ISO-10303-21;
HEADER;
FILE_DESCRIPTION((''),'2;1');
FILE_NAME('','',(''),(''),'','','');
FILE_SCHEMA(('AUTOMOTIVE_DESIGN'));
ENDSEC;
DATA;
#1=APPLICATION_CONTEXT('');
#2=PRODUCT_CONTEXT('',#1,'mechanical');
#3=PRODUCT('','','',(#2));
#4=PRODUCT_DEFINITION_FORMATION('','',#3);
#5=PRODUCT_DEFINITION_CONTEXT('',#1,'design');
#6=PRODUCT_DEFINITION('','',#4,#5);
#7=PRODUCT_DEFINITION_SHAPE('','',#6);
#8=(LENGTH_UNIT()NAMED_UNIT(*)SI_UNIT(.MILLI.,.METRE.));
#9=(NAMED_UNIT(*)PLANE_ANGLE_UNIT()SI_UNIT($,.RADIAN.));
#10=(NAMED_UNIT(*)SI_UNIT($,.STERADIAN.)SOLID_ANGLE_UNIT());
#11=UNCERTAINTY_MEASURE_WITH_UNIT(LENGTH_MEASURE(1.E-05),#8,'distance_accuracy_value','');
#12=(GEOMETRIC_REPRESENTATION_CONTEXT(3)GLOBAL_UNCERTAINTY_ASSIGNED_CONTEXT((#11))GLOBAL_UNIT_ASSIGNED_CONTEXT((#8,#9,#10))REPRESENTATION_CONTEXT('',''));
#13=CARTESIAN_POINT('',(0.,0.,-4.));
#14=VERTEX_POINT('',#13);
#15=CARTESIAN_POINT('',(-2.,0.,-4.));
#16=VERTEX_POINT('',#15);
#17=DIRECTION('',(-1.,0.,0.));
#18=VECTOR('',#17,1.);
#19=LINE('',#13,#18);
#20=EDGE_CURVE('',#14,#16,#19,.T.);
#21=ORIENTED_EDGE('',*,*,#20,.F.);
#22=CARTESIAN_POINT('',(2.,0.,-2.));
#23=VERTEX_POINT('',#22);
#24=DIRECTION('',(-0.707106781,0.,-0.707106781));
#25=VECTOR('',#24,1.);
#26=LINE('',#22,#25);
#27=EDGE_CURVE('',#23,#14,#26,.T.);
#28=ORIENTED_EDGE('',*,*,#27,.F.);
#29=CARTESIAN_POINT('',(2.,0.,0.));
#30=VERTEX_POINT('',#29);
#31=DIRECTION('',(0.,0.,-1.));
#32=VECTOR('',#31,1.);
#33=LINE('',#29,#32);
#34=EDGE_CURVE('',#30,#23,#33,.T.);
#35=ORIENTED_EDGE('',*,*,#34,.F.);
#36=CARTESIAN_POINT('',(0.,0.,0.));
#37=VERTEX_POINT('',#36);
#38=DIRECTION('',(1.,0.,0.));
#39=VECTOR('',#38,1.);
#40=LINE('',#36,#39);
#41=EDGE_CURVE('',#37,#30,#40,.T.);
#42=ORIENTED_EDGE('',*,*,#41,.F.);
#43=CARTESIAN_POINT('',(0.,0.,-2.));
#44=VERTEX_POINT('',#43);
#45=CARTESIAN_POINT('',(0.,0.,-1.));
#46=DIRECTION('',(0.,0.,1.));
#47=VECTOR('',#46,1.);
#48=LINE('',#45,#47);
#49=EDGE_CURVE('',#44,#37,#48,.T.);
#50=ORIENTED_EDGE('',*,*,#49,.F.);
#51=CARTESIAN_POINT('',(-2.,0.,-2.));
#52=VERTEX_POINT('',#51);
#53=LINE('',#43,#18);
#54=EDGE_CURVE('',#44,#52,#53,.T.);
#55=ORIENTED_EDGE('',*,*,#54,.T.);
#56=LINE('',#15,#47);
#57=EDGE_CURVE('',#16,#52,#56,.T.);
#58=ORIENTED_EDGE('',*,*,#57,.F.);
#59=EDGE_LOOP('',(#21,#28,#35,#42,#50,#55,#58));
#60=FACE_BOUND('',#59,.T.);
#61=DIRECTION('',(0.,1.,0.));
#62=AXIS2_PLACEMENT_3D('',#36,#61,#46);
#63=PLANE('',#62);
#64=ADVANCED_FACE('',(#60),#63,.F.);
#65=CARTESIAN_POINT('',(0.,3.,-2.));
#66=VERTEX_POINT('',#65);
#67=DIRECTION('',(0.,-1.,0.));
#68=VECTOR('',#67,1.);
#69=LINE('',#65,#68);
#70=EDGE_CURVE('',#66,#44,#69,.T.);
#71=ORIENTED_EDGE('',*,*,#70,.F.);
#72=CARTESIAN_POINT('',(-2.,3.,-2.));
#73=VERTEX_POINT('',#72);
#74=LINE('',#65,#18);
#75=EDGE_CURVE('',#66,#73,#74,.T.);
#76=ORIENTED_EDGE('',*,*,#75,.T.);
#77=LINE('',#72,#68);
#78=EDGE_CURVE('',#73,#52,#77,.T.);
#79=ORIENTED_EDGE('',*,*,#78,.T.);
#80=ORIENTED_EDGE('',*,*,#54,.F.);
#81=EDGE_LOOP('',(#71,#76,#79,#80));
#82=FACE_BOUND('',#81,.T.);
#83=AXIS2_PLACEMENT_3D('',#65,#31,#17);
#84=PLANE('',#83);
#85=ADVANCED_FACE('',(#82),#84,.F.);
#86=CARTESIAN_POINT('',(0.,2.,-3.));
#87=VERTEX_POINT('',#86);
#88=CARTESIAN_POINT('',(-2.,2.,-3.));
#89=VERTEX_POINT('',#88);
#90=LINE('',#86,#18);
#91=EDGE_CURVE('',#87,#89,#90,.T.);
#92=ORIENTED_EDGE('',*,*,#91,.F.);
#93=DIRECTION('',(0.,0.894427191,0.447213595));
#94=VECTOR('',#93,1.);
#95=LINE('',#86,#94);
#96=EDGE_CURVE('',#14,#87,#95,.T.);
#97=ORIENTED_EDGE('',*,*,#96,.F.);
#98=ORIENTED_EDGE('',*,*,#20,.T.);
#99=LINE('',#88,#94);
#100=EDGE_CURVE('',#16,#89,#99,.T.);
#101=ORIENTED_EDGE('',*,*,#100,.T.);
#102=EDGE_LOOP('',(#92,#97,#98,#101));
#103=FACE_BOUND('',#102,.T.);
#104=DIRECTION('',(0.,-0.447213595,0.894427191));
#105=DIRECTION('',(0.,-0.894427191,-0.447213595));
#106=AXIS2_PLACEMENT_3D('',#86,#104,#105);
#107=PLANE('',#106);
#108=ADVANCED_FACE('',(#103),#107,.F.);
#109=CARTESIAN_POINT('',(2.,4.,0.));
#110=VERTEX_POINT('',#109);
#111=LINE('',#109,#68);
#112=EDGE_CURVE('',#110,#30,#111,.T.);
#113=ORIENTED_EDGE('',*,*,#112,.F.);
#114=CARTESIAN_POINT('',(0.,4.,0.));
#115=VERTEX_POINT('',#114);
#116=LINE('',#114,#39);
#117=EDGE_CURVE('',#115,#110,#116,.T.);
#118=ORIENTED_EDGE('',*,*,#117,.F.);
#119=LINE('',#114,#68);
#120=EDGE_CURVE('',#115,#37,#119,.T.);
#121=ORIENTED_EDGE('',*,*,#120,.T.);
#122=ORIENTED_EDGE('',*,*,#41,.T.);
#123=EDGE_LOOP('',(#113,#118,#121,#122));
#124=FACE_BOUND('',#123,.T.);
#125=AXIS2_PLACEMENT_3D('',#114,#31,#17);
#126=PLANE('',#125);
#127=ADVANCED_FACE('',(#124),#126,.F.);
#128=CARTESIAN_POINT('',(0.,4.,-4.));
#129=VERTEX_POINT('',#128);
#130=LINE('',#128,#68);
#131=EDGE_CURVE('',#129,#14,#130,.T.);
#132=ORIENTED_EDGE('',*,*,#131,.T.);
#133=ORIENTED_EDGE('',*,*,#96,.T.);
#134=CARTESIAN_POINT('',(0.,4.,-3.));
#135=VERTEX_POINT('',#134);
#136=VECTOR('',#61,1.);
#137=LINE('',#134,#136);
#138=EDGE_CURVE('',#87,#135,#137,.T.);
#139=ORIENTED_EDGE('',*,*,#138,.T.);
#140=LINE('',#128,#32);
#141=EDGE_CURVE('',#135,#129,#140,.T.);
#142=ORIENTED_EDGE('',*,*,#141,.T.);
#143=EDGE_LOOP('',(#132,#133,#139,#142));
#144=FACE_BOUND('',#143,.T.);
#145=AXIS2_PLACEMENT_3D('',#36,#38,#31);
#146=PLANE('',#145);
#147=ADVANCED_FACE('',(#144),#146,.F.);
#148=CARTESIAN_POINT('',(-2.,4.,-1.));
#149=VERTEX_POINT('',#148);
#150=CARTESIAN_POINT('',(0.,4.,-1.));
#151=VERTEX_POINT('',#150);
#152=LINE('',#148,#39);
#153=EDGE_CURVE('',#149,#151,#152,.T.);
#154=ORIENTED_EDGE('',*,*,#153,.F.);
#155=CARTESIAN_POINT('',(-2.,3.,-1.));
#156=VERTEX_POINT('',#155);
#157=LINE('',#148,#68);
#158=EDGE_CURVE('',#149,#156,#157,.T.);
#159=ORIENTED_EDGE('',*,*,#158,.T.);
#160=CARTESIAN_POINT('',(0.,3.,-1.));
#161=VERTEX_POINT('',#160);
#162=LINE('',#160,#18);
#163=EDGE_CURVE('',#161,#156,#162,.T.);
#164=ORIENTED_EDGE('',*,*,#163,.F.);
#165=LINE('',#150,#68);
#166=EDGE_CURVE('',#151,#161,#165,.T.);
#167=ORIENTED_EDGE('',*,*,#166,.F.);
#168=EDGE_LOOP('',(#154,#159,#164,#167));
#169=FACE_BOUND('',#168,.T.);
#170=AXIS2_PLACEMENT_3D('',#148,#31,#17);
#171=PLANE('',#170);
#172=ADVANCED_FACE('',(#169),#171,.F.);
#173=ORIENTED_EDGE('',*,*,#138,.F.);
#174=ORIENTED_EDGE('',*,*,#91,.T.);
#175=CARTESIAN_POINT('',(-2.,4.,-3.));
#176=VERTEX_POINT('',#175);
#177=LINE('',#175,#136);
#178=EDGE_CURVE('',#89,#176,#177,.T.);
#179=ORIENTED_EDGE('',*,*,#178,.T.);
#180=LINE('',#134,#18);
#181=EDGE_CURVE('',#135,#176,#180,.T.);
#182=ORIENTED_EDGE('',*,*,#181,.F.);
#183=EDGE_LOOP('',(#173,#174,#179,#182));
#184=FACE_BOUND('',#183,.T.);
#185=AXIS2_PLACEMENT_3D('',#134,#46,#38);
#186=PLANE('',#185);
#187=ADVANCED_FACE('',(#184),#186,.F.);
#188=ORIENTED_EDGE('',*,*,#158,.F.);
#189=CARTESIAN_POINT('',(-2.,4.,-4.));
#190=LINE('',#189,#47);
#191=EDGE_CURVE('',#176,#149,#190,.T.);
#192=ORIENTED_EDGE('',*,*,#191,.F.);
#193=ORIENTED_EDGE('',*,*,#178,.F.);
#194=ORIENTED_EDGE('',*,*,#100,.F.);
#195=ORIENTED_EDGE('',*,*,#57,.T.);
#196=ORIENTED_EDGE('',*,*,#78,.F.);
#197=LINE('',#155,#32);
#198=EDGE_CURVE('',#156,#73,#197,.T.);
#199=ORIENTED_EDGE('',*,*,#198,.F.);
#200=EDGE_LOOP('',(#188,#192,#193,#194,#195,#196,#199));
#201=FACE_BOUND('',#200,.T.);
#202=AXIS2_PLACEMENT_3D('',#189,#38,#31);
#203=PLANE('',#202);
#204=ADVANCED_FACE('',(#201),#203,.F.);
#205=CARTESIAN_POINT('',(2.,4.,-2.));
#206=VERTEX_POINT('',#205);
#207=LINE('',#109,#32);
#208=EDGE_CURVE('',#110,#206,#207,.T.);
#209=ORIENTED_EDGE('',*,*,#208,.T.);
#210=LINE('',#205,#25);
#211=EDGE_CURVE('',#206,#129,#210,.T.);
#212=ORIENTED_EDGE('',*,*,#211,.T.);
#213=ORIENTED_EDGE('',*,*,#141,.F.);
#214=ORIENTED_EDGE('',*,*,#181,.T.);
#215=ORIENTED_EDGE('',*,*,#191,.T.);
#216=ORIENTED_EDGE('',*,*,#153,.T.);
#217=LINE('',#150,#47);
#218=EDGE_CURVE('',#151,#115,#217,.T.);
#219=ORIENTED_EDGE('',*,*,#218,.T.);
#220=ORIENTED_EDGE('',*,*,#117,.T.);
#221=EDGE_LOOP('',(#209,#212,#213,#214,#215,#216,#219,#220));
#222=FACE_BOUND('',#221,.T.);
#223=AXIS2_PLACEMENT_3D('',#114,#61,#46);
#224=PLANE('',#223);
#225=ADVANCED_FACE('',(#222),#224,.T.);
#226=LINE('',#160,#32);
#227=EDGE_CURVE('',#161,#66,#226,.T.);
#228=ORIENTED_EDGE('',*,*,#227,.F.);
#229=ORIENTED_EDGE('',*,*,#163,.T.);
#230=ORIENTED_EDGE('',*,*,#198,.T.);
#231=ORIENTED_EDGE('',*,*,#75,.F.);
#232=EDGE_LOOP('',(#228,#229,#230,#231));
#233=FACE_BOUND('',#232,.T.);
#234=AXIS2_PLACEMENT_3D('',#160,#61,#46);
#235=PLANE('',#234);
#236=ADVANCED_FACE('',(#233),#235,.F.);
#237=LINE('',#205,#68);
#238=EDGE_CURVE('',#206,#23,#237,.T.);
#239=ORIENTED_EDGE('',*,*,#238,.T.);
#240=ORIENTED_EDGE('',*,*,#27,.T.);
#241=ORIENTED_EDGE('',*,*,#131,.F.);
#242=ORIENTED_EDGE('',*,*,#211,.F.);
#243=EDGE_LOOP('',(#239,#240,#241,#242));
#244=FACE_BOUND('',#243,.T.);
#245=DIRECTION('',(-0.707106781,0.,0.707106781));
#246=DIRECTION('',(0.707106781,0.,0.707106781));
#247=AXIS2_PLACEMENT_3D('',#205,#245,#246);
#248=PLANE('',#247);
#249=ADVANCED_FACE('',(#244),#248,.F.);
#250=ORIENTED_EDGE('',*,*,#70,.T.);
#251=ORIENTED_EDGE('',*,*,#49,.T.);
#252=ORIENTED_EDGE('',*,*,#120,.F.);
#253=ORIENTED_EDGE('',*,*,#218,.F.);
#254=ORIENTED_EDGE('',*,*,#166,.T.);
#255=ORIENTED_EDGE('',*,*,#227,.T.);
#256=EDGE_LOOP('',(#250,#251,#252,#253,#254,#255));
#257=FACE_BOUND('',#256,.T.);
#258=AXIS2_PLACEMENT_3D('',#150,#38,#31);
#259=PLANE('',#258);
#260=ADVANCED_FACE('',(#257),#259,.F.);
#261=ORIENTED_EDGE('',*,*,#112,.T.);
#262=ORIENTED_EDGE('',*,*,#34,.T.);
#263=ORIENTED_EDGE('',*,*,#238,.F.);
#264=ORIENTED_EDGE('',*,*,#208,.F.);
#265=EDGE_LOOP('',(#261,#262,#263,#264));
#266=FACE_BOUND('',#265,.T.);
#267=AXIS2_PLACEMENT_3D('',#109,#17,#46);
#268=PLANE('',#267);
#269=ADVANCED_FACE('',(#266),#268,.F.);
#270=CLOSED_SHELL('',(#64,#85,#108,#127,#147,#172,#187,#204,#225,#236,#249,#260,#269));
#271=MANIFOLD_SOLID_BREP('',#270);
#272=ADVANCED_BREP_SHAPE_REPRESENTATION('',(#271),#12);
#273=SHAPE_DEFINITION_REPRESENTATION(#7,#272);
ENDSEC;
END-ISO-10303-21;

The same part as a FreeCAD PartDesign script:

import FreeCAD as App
import Part
import Sketcher

doc = App.newDocument("Part")
body = doc.addObject("PartDesign::Body", "Body")

sketch1 = body.newObject("Sketcher::SketchObject", "Sketch")
sketch1.AttachmentSupport = (doc.getObject("XZ_Plane"), [""])
sketch1.MapMode = "FlatFace"
sketch1.addGeometry(Part.LineSegment(App.Vector(0, 0, 0), App.Vector(2, 0, 0)), False)
sketch1.addGeometry(Part.LineSegment(App.Vector(2, 0, 0), App.Vector(2, -2, 0)), False)
sketch1.addGeometry(Part.LineSegment(App.Vector(2, -2, 0), App.Vector(0, -4, 0)), False)
sketch1.addGeometry(Part.LineSegment(App.Vector(0, -4, 0), App.Vector(-2, -4, 0)), False)
sketch1.addGeometry(Part.LineSegment(App.Vector(-2, -4, 0), App.Vector(-2, -1, 0)), False)
sketch1.addGeometry(Part.LineSegment(App.Vector(-2, -1, 0), App.Vector(0, -1, 0)), False)
sketch1.addGeometry(Part.LineSegment(App.Vector(0, -1, 0), App.Vector(0, 0, 0)), False)
sketch1.addConstraint(Sketcher.Constraint("Coincident", 0, 2, 1, 1))
sketch1.addConstraint(Sketcher.Constraint("Coincident", 1, 2, 2, 1))
sketch1.addConstraint(Sketcher.Constraint("Coincident", 2, 2, 3, 1))
sketch1.addConstraint(Sketcher.Constraint("Coincident", 3, 2, 4, 1))
sketch1.addConstraint(Sketcher.Constraint("Coincident", 4, 2, 5, 1))
sketch1.addConstraint(Sketcher.Constraint("Coincident", 5, 2, 6, 1))
sketch1.addConstraint(Sketcher.Constraint("Coincident", 6, 2, 0, 1))
sketch1.addConstraint(Sketcher.Constraint("Horizontal", 0))
sketch1.addConstraint(Sketcher.Constraint("Vertical", 1))
sketch1.addConstraint(Sketcher.Constraint("Horizontal", 3))
sketch1.addConstraint(Sketcher.Constraint("Vertical", 4))
sketch1.addConstraint(Sketcher.Constraint("Horizontal", 5))
sketch1.addConstraint(Sketcher.Constraint("Vertical", 6))
sketch1.addConstraint(Sketcher.Constraint("Coincident", 6, 2, -1, 1))
sketch1.addConstraint(Sketcher.Constraint("PointOnObject", 2, 2, -2))
sketch1.addConstraint(Sketcher.Constraint("Equal", 0, 3))
sketch1.addConstraint(Sketcher.Constraint("Equal", 5, 1))
sketch1.addConstraint(Sketcher.Constraint("DistanceX", 0, 1, 0, 2, 2.0))
sketch1.addConstraint(Sketcher.Constraint("DistanceY", 4, 1, 4, 2, 3.0))
sketch1.addConstraint(Sketcher.Constraint("DistanceY", 6, 1, 6, 2, 1.0))
pad1 = body.newObject("PartDesign::Pad", "Pad")
pad1.Profile = sketch1
pad1.Length = 4
pad1.Reversed = True

sketch2 = body.newObject("Sketcher::SketchObject", "Sketch001")
sketch2.AttachmentSupport = (doc.getObject("YZ_Plane"), [""])
sketch2.MapMode = "FlatFace"
sketch2.AttachmentOffset = App.Placement(App.Vector(0, 0, -2), App.Rotation())
sketch2.addGeometry(Part.LineSegment(App.Vector(3, -2, 0), App.Vector(0, -2, 0)), False)
sketch2.addGeometry(Part.LineSegment(App.Vector(0, -2, 0), App.Vector(0, -1, 0)), False)
sketch2.addGeometry(Part.LineSegment(App.Vector(0, -1, 0), App.Vector(3, -1, 0)), False)
sketch2.addGeometry(Part.LineSegment(App.Vector(3, -1, 0), App.Vector(3, -2, 0)), False)
sketch2.addGeometry(Part.LineSegment(App.Vector(2, -3, 0), App.Vector(4, -3, 0)), False)
sketch2.addGeometry(Part.LineSegment(App.Vector(4, -3, 0), App.Vector(4, -4, 0)), False)
sketch2.addGeometry(Part.LineSegment(App.Vector(4, -4, 0), App.Vector(0, -4, 0)), False)
sketch2.addGeometry(Part.LineSegment(App.Vector(0, -4, 0), App.Vector(2, -3, 0)), False)
sketch2.addConstraint(Sketcher.Constraint("Coincident", 0, 2, 1, 1))
sketch2.addConstraint(Sketcher.Constraint("Coincident", 1, 2, 2, 1))
sketch2.addConstraint(Sketcher.Constraint("Coincident", 2, 2, 3, 1))
sketch2.addConstraint(Sketcher.Constraint("Coincident", 3, 2, 0, 1))
sketch2.addConstraint(Sketcher.Constraint("Coincident", 4, 2, 5, 1))
sketch2.addConstraint(Sketcher.Constraint("Coincident", 5, 2, 6, 1))
sketch2.addConstraint(Sketcher.Constraint("Coincident", 6, 2, 7, 1))
sketch2.addConstraint(Sketcher.Constraint("Coincident", 7, 2, 4, 1))
sketch2.addConstraint(Sketcher.Constraint("Horizontal", 0))
sketch2.addConstraint(Sketcher.Constraint("Vertical", 1))
sketch2.addConstraint(Sketcher.Constraint("Horizontal", 2))
sketch2.addConstraint(Sketcher.Constraint("Vertical", 3))
sketch2.addConstraint(Sketcher.Constraint("Horizontal", 4))
sketch2.addConstraint(Sketcher.Constraint("Vertical", 5))
sketch2.addConstraint(Sketcher.Constraint("Horizontal", 6))
sketch2.addConstraint(Sketcher.Constraint("PointOnObject", 0, 2, -2))
sketch2.addConstraint(Sketcher.Constraint("PointOnObject", 6, 2, -2))
sketch2.addConstraint(Sketcher.Constraint("Equal", 3, 5))
sketch2.addConstraint(Sketcher.Constraint("DistanceX", 0, 2, 0, 1, 3.0))
sketch2.addConstraint(Sketcher.Constraint("DistanceX", 4, 1, 4, 2, 2.0))
sketch2.addConstraint(Sketcher.Constraint("DistanceX", 6, 2, 6, 1, 4.0))
sketch2.addConstraint(Sketcher.Constraint("DistanceY", 1, 1, 1, 2, 1.0))
sketch2.addConstraint(Sketcher.Constraint("DistanceY", 0, 2, -1, 1, 2.0))
sketch2.addConstraint(Sketcher.Constraint("DistanceY", 4, 2, -1, 1, 3.0))
pocket1 = body.newObject("PartDesign::Pocket", "Pocket")
pocket1.Profile = sketch2
pocket1.Length = 2
pocket1.Reversed = True

doc.recompute()
